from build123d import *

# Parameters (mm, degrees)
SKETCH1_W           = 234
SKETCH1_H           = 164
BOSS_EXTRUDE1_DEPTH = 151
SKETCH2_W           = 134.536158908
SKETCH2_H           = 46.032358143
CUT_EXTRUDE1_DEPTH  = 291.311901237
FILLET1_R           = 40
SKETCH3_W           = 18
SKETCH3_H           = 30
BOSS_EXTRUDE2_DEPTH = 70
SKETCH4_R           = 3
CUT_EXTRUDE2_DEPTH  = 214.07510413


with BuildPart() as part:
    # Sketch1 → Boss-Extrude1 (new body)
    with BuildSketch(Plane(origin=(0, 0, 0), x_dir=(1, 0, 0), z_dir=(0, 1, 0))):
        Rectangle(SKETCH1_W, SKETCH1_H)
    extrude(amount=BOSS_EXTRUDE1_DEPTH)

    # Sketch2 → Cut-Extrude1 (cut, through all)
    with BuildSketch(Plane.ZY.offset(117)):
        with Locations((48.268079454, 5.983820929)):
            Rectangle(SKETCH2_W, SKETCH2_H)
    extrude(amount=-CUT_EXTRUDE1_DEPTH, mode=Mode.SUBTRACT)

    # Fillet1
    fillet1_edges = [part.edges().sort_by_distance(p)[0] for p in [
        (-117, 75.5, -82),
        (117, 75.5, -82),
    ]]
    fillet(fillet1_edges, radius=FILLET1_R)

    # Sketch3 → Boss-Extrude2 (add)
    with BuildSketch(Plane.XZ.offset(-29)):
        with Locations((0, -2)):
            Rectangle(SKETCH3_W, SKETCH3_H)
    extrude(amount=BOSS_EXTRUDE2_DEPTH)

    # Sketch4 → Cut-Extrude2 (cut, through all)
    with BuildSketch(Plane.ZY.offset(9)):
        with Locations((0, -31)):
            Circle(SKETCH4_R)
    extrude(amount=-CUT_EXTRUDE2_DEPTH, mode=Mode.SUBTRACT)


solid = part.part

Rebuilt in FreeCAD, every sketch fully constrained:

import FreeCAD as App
import Part
import Sketcher

V = App.Vector


def edges_at(feature, points):
    """Names of the edges that pass closest to the given points."""
    edges = feature.Shape.Edges
    near = lambda p: min(range(len(edges)), key=lambda i: edges[i].distToShape(Part.Vertex(*p))[0])
    return sorted({f"Edge{near(p) + 1}" for p in points})


def add_polygon(sketch, points):
    """Adds a closed chain of lines whose ends are joined by coincident constraints."""
    first, n = sketch.GeometryCount, len(points)
    for a, b in zip(points, points[1:] + points[:1]):
        sketch.addGeometry(Part.LineSegment(App.Vector(*a, 0), App.Vector(*b, 0)), False)
    for i in range(n):
        sketch.addConstraint(Sketcher.Constraint("Coincident", first + i, 2, first + (i + 1) % n, 1))

doc = App.newDocument("Part")
params = doc.addObject("Spreadsheet::Sheet", "Params")
for row, (alias, value) in enumerate([
    ("sketch1_width", "234 mm"),
    ("sketch1_height", "164 mm"),
    ("pad1_length", "151 mm"),
    ("fillet_radius", "40 mm"),
    ("sketch3_width", "18 mm"),
    ("sketch3_height", "30 mm"),
    ("pad2_length", "70 mm"),
    ("sketch4_diameter", "6 mm"),
], start=1):
    params.set(f"A{row}", alias)
    params.set(f"B{row}", "=" + value)
    params.setAlias(f"B{row}", alias)

body = doc.addObject("PartDesign::Body", "Body")

# Sketch on XZ plane
sketch1 = body.newObject("Sketcher::SketchObject", "Sketch")
sketch1.AttachmentSupport = (doc.getObject("XZ_Plane"), [""])
sketch1.MapMode = "FlatFace"
add_polygon(sketch1, [(-117, -82), (-117, 82), (117, 82), (117, -82)])  # lines 0-3
sketch1.addConstraint([
    Sketcher.Constraint("Vertical", 0),
    Sketcher.Constraint("Horizontal", 1),
    Sketcher.Constraint("Vertical", 2),
    Sketcher.Constraint("Horizontal", 3),
    Sketcher.Constraint("Symmetric", 0, 2, 2, 2, -1, 1),
    Sketcher.Constraint("DistanceX", 1, 1, 1, 2, 234.0),
    Sketcher.Constraint("DistanceY", 0, 1, 0, 2, 164.0),
])
sketch1.setExpression("Constraints[9]", "Params.sketch1_width")
sketch1.setExpression("Constraints[10]", "Params.sketch1_height")
pad1 = body.newObject("PartDesign::Pad", "Pad")
pad1.Profile = sketch1
pad1.setExpression("Length", "Params.pad1_length")
pad1.Reversed = True

# Sketch on YZ plane
sketch2 = body.newObject("Sketcher::SketchObject", "Sketch001")
sketch2.AttachmentSupport = (doc.getObject("YZ_Plane"), [""])
sketch2.MapMode = "FlatFace"
sketch2.AttachmentOffset = App.Placement(V(0, 0, -117), App.Rotation())
add_polygon(sketch2, [(29, -19), (-17, -19), (-17, 116), (29, 116)])  # lines 0-3
sketch2.addConstraint([
    Sketcher.Constraint("Horizontal", 0),
    Sketcher.Constraint("Vertical", 1),
    Sketcher.Constraint("Horizontal", 2),
    Sketcher.Constraint("Vertical", 3),
    Sketcher.Constraint("DistanceY", 0, 2, -1, 1, 19.0),
    Sketcher.Constraint("DistanceX", -1, 1, 2, 2, 29.0),
    Sketcher.Constraint("DistanceX", 0, 2, 0, 1, 46.032358),
    Sketcher.Constraint("DistanceY", 1, 1, 1, 2, 134.536159),
])
pocket1 = body.newObject("PartDesign::Pocket", "Pocket")
pocket1.Profile = sketch2
pocket1.Type = "ThroughAll"
pocket1.Reversed = True
doc.recompute()

fillet = body.newObject("PartDesign::Fillet", "Fillet")
fillet.Base = (pocket1, edges_at(pocket1, [(-117, 75.5, -82), (117, 75.5, -82)]))
fillet.setExpression("Radius", "Params.fillet_radius")

# Sketch on XZ plane
sketch3 = body.newObject("Sketcher::SketchObject", "Sketch002")
sketch3.AttachmentSupport = (doc.getObject("XZ_Plane"), [""])
sketch3.MapMode = "FlatFace"
sketch3.AttachmentOffset = App.Placement(V(0, 0, -29), App.Rotation())
add_polygon(sketch3, [(-9, 13), (-9, -17), (9, -17), (9, 13)])  # lines 0-3
sketch3.addConstraint([
    Sketcher.Constraint("Vertical", 0),
    Sketcher.Constraint("Horizontal", 1),
    Sketcher.Constraint("Vertical", 2),
    Sketcher.Constraint("Horizontal", 3),
    Sketcher.Constraint("DistanceX", 1, 1, 1, 2, 18.0),
    Sketcher.Constraint("DistanceY", 0, 2, 0, 1, 30.0),
    Sketcher.Constraint("DistanceX", 0, 2, -1, 1, 9.0),
    Sketcher.Constraint("DistanceY", 0, 2, -1, 1, 17.0),
])
sketch3.setExpression("Constraints[8]", "Params.sketch3_width")
sketch3.setExpression("Constraints[9]", "Params.sketch3_height")
pad2 = body.newObject("PartDesign::Pad", "Pad001")
pad2.Profile = sketch3
pad2.setExpression("Length", "Params.pad2_length")

# Sketch on YZ plane
sketch4 = body.newObject("Sketcher::SketchObject", "Sketch003")
sketch4.AttachmentSupport = (doc.getObject("YZ_Plane"), [""])
sketch4.MapMode = "FlatFace"
sketch4.AttachmentOffset = App.Placement(V(0, 0, -9), App.Rotation())
sketch4.addGeometry(Part.Circle(V(-31, 0, 0), V(0, 0, 1), 3), False)
sketch4.addConstraint([
    Sketcher.Constraint("PointOnObject", 0, 3, -1),
    Sketcher.Constraint("Diameter", 0, 6.0),
    Sketcher.Constraint("DistanceX", 0, 3, -1, 1, 31.0),
])
sketch4.setExpression("Constraints[1]", "Params.sketch4_diameter")
pocket2 = body.newObject("PartDesign::Pocket", "Pocket001")
pocket2.Profile = sketch4
pocket2.Type = "ThroughAll"
pocket2.Reversed = True

doc.recompute()
